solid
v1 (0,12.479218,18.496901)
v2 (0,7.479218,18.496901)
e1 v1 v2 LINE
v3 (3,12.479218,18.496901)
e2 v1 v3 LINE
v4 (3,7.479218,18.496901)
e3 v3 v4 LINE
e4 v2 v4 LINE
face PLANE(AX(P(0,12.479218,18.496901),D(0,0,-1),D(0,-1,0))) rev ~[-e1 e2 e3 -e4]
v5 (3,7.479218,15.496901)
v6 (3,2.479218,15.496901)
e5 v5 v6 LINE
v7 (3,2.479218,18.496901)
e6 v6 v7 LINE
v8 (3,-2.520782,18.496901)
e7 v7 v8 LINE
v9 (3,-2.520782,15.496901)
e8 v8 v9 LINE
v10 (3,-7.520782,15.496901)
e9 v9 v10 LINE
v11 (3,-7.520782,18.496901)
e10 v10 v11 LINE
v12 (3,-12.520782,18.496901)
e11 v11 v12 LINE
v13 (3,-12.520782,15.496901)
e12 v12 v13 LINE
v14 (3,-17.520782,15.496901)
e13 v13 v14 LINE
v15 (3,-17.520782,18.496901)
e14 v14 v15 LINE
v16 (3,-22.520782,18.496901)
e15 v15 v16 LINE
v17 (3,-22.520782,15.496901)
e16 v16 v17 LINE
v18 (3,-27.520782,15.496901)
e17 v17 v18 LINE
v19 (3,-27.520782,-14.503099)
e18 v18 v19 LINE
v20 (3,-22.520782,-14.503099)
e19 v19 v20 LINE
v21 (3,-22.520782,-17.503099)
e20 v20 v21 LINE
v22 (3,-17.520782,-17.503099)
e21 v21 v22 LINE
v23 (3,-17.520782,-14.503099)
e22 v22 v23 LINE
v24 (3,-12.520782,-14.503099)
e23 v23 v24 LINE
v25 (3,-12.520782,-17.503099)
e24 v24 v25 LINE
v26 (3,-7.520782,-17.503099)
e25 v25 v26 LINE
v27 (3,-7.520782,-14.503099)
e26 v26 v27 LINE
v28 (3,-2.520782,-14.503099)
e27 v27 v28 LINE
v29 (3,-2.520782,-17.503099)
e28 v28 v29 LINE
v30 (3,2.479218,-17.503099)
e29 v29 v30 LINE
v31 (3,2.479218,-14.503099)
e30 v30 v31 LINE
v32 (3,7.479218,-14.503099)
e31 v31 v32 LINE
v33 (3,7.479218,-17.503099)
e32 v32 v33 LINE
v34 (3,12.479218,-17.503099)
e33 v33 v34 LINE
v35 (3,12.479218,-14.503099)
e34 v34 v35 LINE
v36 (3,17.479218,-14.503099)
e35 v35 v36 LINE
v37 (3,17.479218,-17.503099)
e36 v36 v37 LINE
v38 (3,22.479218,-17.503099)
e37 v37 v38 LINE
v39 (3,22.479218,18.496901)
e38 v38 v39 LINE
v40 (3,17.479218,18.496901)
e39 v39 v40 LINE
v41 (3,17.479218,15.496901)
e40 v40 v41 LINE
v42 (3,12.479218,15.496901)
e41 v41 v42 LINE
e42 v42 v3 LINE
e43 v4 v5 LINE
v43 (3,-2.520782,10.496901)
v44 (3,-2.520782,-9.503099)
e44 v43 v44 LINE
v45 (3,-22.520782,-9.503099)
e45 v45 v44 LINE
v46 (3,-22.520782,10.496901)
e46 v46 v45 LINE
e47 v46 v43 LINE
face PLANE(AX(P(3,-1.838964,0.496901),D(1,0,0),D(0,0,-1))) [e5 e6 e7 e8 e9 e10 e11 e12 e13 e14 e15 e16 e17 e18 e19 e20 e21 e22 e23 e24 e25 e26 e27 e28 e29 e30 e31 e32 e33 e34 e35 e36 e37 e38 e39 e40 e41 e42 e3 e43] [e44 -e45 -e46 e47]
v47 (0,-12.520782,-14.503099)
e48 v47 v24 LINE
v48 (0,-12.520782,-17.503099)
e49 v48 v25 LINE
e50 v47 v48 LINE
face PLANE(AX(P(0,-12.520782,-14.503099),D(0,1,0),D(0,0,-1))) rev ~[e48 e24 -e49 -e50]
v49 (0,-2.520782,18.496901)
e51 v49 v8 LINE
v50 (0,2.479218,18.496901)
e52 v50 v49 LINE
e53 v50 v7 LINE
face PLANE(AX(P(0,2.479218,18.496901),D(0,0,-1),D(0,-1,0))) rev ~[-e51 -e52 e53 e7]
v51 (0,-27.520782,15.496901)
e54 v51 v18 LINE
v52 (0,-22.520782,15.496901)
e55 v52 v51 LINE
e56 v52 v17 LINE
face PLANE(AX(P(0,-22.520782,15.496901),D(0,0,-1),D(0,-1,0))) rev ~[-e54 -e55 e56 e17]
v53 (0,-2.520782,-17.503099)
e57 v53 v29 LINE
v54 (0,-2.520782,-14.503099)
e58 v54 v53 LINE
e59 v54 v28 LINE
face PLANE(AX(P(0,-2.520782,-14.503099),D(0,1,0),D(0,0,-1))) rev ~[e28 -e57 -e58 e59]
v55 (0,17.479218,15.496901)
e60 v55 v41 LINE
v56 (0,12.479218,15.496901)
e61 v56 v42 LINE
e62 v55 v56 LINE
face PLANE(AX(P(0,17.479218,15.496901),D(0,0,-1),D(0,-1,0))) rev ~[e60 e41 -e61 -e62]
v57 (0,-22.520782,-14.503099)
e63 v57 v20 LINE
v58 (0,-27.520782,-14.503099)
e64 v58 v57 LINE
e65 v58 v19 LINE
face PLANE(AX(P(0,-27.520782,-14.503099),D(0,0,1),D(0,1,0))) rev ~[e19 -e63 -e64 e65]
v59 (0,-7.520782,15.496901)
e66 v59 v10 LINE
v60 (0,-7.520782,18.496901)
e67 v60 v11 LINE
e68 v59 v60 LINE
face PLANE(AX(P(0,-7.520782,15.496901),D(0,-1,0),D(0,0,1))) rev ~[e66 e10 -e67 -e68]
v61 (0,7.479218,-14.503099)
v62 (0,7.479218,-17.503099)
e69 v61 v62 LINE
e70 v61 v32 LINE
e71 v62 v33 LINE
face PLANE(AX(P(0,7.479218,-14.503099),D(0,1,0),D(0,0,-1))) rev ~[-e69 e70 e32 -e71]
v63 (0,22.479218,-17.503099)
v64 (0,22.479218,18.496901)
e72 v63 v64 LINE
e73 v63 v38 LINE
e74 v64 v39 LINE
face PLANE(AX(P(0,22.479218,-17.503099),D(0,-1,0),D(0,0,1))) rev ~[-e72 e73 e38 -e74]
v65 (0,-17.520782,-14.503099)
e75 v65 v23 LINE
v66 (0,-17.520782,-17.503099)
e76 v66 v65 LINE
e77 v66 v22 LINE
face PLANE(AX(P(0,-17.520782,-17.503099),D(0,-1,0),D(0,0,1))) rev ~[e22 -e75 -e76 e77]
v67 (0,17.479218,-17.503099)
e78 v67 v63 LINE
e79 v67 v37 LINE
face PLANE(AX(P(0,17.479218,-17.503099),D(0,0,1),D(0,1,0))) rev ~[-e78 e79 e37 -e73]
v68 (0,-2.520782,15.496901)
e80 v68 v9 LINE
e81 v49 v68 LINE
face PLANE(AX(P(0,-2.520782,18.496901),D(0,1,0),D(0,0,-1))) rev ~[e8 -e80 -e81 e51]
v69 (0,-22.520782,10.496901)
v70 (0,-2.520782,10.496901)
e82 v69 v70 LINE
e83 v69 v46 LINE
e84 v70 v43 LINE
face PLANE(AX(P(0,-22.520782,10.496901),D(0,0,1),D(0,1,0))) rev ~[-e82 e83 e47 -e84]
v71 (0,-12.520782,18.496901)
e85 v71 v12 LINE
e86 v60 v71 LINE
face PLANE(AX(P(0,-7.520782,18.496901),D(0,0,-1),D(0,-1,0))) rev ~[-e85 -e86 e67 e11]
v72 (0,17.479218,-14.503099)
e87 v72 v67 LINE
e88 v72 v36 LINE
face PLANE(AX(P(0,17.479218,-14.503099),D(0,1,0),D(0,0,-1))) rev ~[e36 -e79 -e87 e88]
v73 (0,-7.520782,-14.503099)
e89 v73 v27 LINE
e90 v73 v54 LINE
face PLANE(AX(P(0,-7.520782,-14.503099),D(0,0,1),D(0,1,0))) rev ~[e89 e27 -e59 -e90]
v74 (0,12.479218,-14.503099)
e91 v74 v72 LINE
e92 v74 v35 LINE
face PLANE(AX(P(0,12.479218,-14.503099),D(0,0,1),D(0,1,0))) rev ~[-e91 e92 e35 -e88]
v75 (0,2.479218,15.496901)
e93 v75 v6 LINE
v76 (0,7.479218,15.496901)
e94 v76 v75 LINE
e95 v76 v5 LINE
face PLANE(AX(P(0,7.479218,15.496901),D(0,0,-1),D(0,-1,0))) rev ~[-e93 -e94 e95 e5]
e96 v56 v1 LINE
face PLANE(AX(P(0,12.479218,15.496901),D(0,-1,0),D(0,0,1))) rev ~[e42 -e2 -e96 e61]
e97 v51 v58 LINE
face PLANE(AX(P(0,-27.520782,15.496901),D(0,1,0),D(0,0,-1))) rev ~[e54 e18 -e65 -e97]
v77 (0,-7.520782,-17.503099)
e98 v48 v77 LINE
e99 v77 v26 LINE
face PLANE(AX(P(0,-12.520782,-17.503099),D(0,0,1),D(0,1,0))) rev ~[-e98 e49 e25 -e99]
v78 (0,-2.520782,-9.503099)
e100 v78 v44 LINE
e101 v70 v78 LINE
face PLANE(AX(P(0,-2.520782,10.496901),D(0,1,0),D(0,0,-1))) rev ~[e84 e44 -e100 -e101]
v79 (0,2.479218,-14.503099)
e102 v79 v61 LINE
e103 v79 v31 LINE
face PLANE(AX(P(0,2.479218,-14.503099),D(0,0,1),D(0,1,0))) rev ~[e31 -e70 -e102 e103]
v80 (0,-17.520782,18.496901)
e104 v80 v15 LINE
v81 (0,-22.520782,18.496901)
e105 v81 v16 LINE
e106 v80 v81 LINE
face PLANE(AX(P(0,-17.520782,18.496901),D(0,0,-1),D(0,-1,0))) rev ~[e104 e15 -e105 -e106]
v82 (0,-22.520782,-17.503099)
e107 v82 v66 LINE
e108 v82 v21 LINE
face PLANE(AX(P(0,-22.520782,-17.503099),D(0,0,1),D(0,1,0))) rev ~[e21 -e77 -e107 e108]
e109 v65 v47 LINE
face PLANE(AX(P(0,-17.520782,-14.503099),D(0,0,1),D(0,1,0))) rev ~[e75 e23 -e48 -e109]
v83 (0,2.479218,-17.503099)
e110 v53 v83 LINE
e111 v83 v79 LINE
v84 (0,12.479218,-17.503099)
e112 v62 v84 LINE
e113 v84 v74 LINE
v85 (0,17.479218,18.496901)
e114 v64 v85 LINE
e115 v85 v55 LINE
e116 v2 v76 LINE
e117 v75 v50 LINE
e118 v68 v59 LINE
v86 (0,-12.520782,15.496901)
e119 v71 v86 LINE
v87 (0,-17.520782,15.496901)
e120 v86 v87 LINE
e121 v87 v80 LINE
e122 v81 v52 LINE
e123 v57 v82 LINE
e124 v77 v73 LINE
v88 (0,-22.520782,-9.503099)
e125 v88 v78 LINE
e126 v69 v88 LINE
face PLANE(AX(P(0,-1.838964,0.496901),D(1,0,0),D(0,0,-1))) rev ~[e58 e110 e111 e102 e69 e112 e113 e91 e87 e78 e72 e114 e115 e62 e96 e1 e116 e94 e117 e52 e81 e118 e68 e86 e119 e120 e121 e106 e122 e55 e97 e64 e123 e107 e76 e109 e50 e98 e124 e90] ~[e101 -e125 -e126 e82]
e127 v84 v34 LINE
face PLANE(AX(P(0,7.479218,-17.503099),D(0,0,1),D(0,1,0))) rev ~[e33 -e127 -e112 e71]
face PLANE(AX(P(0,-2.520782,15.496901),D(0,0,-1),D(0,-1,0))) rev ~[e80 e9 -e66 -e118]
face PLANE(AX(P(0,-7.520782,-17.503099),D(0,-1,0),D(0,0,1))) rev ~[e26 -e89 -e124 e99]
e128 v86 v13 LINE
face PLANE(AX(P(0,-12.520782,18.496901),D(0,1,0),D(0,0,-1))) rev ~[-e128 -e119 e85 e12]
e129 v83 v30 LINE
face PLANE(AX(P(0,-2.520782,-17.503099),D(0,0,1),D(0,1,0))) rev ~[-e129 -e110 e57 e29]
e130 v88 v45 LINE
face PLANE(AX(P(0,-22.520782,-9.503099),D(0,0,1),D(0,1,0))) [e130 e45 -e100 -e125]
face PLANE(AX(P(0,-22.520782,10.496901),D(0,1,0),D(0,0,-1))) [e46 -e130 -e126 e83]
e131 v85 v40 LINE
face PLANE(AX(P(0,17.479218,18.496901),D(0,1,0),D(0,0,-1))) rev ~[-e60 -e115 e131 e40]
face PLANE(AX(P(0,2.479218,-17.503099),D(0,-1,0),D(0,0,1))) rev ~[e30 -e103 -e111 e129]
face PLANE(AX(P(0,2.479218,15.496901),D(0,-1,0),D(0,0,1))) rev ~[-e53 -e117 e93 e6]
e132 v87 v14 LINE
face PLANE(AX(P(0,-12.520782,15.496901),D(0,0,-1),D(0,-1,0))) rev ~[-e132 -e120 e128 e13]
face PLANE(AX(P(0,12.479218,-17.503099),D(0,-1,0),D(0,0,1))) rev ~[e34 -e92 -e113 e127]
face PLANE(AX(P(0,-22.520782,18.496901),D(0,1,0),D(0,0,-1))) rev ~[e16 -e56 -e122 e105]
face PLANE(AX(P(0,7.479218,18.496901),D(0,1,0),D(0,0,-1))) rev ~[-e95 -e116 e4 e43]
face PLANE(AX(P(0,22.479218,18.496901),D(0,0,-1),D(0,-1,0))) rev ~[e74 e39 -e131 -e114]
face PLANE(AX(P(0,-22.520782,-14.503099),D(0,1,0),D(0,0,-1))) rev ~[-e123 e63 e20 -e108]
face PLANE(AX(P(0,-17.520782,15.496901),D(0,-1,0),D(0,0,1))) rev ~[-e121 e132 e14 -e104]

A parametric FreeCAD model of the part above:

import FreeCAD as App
import Part
import Sketcher

V = App.Vector
Q = App.Units.Quantity


def add_polygon(sketch, points):
    """Adds a closed chain of lines whose ends are joined by coincident constraints."""
    first, n = sketch.GeometryCount, len(points)
    for a, b in zip(points, points[1:] + points[:1]):
        sketch.addGeometry(Part.LineSegment(App.Vector(*a, 0), App.Vector(*b, 0)), False)
    for i in range(n):
        sketch.addConstraint(Sketcher.Constraint("Coincident", first + i, 2, first + (i + 1) % n, 1))

doc = App.newDocument("Part")
body = doc.addObject("PartDesign::Body", "Body")

# Sketch on YZ plane
sketch1 = doc.addObject("Sketcher::SketchObject", "Sketch")
body.addObject(sketch1)
sketch1.AttachmentSupport = (doc.YZ_Plane, [""])
sketch1.MapMode = "FlatFace"
add_polygon(sketch1, [(22.5, 18.5), (17.5, 18.5), (17.5, 15.5), (12.5, 15.5), (12.5, 18.5), (7.5, 18.5), (7.5, 15.5), (2.5, 15.5), (2.5, 18.5), (-2.5, 18.5), (-2.5, 15.5), (-7.5, 15.5), (-7.5, 18.5), (-12.5, 18.5), (-12.5, 15.5), (-17.5, 15.5), (-17.5, 18.5), (-22.5, 18.5), (-22.5, 15.5), (-27.5, 15.5), (-27.5, -14.5), (-22.5, -14.5), (-22.5, -17.5), (-17.5, -17.5), (-17.5, -14.5), (-12.5, -14.5), (-12.5, -17.5), (-7.5, -17.5), (-7.5, -14.5), (-2.5, -14.5), (-2.5, -17.5), (2.5, -17.5), (2.5, -14.5), (7.5, -14.5), (7.5, -17.5), (12.5, -17.5), (12.5, -14.5), (17.5, -14.5), (17.5, -17.5), (22.5, -17.5)])  # lines 0-39
add_polygon(sketch1, [(-22.5, -9.5), (-22.5, 10.5), (-2.5, 10.5), (-2.5, -9.5)])  # lines 40-43
sketch1.addConstraint([
    Sketcher.Constraint("Horizontal", 0),
    Sketcher.Constraint("Vertical", 1),
    Sketcher.Constraint("Horizontal", 2),
    Sketcher.Constraint("Vertical", 3),
    Sketcher.Constraint("Horizontal", 4),
    Sketcher.Constraint("Vertical", 5),
    Sketcher.Constraint("Horizontal", 6),
    Sketcher.Constraint("Vertical", 7),
    Sketcher.Constraint("Horizontal", 8),
    Sketcher.Constraint("Vertical", 9),
    Sketcher.Constraint("Horizontal", 10),
    Sketcher.Constraint("Vertical", 11),
    Sketcher.Constraint("Horizontal", 12),
    Sketcher.Constraint("Vertical", 13),
    Sketcher.Constraint("Horizontal", 14),
    Sketcher.Constraint("Vertical", 15),
    Sketcher.Constraint("Horizontal", 16),
    Sketcher.Constraint("Vertical", 17),
    Sketcher.Constraint("Horizontal", 18),
    Sketcher.Constraint("Vertical", 19),
    Sketcher.Constraint("Horizontal", 20),
    Sketcher.Constraint("Vertical", 21),
    Sketcher.Constraint("Horizontal", 22),
    Sketcher.Constraint("Vertical", 23),
    Sketcher.Constraint("Horizontal", 24),
    Sketcher.Constraint("Vertical", 25),
    Sketcher.Constraint("Horizontal", 26),
    Sketcher.Constraint("Vertical", 27),
    Sketcher.Constraint("Horizontal", 28),
    Sketcher.Constraint("Vertical", 29),
    Sketcher.Constraint("Horizontal", 30),
    Sketcher.Constraint("Vertical", 31),
    Sketcher.Constraint("Horizontal", 32),
    Sketcher.Constraint("Vertical", 33),
    Sketcher.Constraint("Horizontal", 34),
    Sketcher.Constraint("Vertical", 35),
    Sketcher.Constraint("Horizontal", 36),
    Sketcher.Constraint("Vertical", 37),
    Sketcher.Constraint("Horizontal", 38),
    Sketcher.Constraint("Vertical", 39),
    Sketcher.Constraint("Vertical", 40),
    Sketcher.Constraint("Horizontal", 41),
    Sketcher.Constraint("Vertical", 42),
    Sketcher.Constraint("Horizontal", 43),
    Sketcher.Constraint("Horizontal", 0, 2, 3, 2),
    Sketcher.Constraint("Horizontal", 2, 2, 5, 2),
    Sketcher.Constraint("Horizontal", 4, 2, 7, 2),
    Sketcher.Constraint("Horizontal", 6, 2, 9, 2),
    Sketcher.Constraint("Horizontal", 8, 2, 11, 2),
    Sketcher.Constraint("Horizontal", 10, 2, 13, 2),
    Sketcher.Constraint("Horizontal", 12, 2, 15, 2),
    Sketcher.Constraint("Horizontal", 14, 2, 17, 2),
    Sketcher.Constraint("Horizontal", 20, 2, 23, 2),
    Sketcher.Constraint("Horizontal", 22, 2, 25, 2),
    Sketcher.Constraint("Horizontal", 24, 2, 27, 2),
    Sketcher.Constraint("Horizontal", 26, 2, 29, 2),
    Sketcher.Constraint("Horizontal", 28, 2, 31, 2),
    Sketcher.Constraint("Horizontal", 30, 2, 33, 2),
    Sketcher.Constraint("Horizontal", 32, 2, 35, 2),
    Sketcher.Constraint("Horizontal", 34, 2, 37, 2),
    Sketcher.Constraint("Vertical", 17, 2, 20, 2),
    Sketcher.Constraint("Vertical", 15, 2, 22, 2),
    Sketcher.Constraint("Vertical", 13, 2, 24, 2),
    Sketcher.Constraint("Vertical", 11, 2, 26, 2),
    Sketcher.Constraint("Vertical", 9, 2, 28, 2),
    Sketcher.Constraint("Vertical", 7, 2, 30, 2),
    Sketcher.Constraint("Vertical", 5, 2, 32, 2),
    Sketcher.Constraint("Vertical", 3, 2, 34, 2),
    Sketcher.Constraint("Vertical", 1, 2, 36, 2),
    Sketcher.Constraint("Vertical", 21, 2, 40, 2),
    Sketcher.Constraint("Vertical", 29, 2, 41, 2),
    Sketcher.Constraint("Equal", 0, 2),
    Sketcher.Constraint("Equal", 2, 4),
    Sketcher.Constraint("Equal", 4, 6),
    Sketcher.Constraint("Equal", 6, 8),
    Sketcher.Constraint("Equal", 8, 10),
    Sketcher.Constraint("Equal", 10, 12),
    Sketcher.Constraint("Equal", 12, 14),
    Sketcher.Constraint("Equal", 14, 16),
    Sketcher.Constraint("Equal", 16, 18),
    Sketcher.Constraint("Equal", 17, 21),
    Sketcher.Constraint("Equal", 43, 40),
    Sketcher.Constraint("DistanceX", 0, 2, 0, 1, Q("5 mm")),
    Sketcher.Constraint("DistanceY", 1, 2, 1, 1, Q("3 mm")),
    Sketcher.Constraint("DistanceY", 19, 2, 19, 1, Q("30 mm")),
    Sketcher.Constraint("DistanceY", 40, 2, 17, 2, Q("5 mm")),
    Sketcher.Constraint("DistanceY", -1, 1, 0, 2, Q("18.496901 mm")),
    Sketcher.Constraint("DistanceX", -1, 1, 0, 2, Q("17.479218 mm")),
])
pad1 = doc.addObject("PartDesign::Pad", "Pad")
body.addObject(pad1)
pad1.Profile = sketch1
pad1.Length = 3

doc.recompute()
